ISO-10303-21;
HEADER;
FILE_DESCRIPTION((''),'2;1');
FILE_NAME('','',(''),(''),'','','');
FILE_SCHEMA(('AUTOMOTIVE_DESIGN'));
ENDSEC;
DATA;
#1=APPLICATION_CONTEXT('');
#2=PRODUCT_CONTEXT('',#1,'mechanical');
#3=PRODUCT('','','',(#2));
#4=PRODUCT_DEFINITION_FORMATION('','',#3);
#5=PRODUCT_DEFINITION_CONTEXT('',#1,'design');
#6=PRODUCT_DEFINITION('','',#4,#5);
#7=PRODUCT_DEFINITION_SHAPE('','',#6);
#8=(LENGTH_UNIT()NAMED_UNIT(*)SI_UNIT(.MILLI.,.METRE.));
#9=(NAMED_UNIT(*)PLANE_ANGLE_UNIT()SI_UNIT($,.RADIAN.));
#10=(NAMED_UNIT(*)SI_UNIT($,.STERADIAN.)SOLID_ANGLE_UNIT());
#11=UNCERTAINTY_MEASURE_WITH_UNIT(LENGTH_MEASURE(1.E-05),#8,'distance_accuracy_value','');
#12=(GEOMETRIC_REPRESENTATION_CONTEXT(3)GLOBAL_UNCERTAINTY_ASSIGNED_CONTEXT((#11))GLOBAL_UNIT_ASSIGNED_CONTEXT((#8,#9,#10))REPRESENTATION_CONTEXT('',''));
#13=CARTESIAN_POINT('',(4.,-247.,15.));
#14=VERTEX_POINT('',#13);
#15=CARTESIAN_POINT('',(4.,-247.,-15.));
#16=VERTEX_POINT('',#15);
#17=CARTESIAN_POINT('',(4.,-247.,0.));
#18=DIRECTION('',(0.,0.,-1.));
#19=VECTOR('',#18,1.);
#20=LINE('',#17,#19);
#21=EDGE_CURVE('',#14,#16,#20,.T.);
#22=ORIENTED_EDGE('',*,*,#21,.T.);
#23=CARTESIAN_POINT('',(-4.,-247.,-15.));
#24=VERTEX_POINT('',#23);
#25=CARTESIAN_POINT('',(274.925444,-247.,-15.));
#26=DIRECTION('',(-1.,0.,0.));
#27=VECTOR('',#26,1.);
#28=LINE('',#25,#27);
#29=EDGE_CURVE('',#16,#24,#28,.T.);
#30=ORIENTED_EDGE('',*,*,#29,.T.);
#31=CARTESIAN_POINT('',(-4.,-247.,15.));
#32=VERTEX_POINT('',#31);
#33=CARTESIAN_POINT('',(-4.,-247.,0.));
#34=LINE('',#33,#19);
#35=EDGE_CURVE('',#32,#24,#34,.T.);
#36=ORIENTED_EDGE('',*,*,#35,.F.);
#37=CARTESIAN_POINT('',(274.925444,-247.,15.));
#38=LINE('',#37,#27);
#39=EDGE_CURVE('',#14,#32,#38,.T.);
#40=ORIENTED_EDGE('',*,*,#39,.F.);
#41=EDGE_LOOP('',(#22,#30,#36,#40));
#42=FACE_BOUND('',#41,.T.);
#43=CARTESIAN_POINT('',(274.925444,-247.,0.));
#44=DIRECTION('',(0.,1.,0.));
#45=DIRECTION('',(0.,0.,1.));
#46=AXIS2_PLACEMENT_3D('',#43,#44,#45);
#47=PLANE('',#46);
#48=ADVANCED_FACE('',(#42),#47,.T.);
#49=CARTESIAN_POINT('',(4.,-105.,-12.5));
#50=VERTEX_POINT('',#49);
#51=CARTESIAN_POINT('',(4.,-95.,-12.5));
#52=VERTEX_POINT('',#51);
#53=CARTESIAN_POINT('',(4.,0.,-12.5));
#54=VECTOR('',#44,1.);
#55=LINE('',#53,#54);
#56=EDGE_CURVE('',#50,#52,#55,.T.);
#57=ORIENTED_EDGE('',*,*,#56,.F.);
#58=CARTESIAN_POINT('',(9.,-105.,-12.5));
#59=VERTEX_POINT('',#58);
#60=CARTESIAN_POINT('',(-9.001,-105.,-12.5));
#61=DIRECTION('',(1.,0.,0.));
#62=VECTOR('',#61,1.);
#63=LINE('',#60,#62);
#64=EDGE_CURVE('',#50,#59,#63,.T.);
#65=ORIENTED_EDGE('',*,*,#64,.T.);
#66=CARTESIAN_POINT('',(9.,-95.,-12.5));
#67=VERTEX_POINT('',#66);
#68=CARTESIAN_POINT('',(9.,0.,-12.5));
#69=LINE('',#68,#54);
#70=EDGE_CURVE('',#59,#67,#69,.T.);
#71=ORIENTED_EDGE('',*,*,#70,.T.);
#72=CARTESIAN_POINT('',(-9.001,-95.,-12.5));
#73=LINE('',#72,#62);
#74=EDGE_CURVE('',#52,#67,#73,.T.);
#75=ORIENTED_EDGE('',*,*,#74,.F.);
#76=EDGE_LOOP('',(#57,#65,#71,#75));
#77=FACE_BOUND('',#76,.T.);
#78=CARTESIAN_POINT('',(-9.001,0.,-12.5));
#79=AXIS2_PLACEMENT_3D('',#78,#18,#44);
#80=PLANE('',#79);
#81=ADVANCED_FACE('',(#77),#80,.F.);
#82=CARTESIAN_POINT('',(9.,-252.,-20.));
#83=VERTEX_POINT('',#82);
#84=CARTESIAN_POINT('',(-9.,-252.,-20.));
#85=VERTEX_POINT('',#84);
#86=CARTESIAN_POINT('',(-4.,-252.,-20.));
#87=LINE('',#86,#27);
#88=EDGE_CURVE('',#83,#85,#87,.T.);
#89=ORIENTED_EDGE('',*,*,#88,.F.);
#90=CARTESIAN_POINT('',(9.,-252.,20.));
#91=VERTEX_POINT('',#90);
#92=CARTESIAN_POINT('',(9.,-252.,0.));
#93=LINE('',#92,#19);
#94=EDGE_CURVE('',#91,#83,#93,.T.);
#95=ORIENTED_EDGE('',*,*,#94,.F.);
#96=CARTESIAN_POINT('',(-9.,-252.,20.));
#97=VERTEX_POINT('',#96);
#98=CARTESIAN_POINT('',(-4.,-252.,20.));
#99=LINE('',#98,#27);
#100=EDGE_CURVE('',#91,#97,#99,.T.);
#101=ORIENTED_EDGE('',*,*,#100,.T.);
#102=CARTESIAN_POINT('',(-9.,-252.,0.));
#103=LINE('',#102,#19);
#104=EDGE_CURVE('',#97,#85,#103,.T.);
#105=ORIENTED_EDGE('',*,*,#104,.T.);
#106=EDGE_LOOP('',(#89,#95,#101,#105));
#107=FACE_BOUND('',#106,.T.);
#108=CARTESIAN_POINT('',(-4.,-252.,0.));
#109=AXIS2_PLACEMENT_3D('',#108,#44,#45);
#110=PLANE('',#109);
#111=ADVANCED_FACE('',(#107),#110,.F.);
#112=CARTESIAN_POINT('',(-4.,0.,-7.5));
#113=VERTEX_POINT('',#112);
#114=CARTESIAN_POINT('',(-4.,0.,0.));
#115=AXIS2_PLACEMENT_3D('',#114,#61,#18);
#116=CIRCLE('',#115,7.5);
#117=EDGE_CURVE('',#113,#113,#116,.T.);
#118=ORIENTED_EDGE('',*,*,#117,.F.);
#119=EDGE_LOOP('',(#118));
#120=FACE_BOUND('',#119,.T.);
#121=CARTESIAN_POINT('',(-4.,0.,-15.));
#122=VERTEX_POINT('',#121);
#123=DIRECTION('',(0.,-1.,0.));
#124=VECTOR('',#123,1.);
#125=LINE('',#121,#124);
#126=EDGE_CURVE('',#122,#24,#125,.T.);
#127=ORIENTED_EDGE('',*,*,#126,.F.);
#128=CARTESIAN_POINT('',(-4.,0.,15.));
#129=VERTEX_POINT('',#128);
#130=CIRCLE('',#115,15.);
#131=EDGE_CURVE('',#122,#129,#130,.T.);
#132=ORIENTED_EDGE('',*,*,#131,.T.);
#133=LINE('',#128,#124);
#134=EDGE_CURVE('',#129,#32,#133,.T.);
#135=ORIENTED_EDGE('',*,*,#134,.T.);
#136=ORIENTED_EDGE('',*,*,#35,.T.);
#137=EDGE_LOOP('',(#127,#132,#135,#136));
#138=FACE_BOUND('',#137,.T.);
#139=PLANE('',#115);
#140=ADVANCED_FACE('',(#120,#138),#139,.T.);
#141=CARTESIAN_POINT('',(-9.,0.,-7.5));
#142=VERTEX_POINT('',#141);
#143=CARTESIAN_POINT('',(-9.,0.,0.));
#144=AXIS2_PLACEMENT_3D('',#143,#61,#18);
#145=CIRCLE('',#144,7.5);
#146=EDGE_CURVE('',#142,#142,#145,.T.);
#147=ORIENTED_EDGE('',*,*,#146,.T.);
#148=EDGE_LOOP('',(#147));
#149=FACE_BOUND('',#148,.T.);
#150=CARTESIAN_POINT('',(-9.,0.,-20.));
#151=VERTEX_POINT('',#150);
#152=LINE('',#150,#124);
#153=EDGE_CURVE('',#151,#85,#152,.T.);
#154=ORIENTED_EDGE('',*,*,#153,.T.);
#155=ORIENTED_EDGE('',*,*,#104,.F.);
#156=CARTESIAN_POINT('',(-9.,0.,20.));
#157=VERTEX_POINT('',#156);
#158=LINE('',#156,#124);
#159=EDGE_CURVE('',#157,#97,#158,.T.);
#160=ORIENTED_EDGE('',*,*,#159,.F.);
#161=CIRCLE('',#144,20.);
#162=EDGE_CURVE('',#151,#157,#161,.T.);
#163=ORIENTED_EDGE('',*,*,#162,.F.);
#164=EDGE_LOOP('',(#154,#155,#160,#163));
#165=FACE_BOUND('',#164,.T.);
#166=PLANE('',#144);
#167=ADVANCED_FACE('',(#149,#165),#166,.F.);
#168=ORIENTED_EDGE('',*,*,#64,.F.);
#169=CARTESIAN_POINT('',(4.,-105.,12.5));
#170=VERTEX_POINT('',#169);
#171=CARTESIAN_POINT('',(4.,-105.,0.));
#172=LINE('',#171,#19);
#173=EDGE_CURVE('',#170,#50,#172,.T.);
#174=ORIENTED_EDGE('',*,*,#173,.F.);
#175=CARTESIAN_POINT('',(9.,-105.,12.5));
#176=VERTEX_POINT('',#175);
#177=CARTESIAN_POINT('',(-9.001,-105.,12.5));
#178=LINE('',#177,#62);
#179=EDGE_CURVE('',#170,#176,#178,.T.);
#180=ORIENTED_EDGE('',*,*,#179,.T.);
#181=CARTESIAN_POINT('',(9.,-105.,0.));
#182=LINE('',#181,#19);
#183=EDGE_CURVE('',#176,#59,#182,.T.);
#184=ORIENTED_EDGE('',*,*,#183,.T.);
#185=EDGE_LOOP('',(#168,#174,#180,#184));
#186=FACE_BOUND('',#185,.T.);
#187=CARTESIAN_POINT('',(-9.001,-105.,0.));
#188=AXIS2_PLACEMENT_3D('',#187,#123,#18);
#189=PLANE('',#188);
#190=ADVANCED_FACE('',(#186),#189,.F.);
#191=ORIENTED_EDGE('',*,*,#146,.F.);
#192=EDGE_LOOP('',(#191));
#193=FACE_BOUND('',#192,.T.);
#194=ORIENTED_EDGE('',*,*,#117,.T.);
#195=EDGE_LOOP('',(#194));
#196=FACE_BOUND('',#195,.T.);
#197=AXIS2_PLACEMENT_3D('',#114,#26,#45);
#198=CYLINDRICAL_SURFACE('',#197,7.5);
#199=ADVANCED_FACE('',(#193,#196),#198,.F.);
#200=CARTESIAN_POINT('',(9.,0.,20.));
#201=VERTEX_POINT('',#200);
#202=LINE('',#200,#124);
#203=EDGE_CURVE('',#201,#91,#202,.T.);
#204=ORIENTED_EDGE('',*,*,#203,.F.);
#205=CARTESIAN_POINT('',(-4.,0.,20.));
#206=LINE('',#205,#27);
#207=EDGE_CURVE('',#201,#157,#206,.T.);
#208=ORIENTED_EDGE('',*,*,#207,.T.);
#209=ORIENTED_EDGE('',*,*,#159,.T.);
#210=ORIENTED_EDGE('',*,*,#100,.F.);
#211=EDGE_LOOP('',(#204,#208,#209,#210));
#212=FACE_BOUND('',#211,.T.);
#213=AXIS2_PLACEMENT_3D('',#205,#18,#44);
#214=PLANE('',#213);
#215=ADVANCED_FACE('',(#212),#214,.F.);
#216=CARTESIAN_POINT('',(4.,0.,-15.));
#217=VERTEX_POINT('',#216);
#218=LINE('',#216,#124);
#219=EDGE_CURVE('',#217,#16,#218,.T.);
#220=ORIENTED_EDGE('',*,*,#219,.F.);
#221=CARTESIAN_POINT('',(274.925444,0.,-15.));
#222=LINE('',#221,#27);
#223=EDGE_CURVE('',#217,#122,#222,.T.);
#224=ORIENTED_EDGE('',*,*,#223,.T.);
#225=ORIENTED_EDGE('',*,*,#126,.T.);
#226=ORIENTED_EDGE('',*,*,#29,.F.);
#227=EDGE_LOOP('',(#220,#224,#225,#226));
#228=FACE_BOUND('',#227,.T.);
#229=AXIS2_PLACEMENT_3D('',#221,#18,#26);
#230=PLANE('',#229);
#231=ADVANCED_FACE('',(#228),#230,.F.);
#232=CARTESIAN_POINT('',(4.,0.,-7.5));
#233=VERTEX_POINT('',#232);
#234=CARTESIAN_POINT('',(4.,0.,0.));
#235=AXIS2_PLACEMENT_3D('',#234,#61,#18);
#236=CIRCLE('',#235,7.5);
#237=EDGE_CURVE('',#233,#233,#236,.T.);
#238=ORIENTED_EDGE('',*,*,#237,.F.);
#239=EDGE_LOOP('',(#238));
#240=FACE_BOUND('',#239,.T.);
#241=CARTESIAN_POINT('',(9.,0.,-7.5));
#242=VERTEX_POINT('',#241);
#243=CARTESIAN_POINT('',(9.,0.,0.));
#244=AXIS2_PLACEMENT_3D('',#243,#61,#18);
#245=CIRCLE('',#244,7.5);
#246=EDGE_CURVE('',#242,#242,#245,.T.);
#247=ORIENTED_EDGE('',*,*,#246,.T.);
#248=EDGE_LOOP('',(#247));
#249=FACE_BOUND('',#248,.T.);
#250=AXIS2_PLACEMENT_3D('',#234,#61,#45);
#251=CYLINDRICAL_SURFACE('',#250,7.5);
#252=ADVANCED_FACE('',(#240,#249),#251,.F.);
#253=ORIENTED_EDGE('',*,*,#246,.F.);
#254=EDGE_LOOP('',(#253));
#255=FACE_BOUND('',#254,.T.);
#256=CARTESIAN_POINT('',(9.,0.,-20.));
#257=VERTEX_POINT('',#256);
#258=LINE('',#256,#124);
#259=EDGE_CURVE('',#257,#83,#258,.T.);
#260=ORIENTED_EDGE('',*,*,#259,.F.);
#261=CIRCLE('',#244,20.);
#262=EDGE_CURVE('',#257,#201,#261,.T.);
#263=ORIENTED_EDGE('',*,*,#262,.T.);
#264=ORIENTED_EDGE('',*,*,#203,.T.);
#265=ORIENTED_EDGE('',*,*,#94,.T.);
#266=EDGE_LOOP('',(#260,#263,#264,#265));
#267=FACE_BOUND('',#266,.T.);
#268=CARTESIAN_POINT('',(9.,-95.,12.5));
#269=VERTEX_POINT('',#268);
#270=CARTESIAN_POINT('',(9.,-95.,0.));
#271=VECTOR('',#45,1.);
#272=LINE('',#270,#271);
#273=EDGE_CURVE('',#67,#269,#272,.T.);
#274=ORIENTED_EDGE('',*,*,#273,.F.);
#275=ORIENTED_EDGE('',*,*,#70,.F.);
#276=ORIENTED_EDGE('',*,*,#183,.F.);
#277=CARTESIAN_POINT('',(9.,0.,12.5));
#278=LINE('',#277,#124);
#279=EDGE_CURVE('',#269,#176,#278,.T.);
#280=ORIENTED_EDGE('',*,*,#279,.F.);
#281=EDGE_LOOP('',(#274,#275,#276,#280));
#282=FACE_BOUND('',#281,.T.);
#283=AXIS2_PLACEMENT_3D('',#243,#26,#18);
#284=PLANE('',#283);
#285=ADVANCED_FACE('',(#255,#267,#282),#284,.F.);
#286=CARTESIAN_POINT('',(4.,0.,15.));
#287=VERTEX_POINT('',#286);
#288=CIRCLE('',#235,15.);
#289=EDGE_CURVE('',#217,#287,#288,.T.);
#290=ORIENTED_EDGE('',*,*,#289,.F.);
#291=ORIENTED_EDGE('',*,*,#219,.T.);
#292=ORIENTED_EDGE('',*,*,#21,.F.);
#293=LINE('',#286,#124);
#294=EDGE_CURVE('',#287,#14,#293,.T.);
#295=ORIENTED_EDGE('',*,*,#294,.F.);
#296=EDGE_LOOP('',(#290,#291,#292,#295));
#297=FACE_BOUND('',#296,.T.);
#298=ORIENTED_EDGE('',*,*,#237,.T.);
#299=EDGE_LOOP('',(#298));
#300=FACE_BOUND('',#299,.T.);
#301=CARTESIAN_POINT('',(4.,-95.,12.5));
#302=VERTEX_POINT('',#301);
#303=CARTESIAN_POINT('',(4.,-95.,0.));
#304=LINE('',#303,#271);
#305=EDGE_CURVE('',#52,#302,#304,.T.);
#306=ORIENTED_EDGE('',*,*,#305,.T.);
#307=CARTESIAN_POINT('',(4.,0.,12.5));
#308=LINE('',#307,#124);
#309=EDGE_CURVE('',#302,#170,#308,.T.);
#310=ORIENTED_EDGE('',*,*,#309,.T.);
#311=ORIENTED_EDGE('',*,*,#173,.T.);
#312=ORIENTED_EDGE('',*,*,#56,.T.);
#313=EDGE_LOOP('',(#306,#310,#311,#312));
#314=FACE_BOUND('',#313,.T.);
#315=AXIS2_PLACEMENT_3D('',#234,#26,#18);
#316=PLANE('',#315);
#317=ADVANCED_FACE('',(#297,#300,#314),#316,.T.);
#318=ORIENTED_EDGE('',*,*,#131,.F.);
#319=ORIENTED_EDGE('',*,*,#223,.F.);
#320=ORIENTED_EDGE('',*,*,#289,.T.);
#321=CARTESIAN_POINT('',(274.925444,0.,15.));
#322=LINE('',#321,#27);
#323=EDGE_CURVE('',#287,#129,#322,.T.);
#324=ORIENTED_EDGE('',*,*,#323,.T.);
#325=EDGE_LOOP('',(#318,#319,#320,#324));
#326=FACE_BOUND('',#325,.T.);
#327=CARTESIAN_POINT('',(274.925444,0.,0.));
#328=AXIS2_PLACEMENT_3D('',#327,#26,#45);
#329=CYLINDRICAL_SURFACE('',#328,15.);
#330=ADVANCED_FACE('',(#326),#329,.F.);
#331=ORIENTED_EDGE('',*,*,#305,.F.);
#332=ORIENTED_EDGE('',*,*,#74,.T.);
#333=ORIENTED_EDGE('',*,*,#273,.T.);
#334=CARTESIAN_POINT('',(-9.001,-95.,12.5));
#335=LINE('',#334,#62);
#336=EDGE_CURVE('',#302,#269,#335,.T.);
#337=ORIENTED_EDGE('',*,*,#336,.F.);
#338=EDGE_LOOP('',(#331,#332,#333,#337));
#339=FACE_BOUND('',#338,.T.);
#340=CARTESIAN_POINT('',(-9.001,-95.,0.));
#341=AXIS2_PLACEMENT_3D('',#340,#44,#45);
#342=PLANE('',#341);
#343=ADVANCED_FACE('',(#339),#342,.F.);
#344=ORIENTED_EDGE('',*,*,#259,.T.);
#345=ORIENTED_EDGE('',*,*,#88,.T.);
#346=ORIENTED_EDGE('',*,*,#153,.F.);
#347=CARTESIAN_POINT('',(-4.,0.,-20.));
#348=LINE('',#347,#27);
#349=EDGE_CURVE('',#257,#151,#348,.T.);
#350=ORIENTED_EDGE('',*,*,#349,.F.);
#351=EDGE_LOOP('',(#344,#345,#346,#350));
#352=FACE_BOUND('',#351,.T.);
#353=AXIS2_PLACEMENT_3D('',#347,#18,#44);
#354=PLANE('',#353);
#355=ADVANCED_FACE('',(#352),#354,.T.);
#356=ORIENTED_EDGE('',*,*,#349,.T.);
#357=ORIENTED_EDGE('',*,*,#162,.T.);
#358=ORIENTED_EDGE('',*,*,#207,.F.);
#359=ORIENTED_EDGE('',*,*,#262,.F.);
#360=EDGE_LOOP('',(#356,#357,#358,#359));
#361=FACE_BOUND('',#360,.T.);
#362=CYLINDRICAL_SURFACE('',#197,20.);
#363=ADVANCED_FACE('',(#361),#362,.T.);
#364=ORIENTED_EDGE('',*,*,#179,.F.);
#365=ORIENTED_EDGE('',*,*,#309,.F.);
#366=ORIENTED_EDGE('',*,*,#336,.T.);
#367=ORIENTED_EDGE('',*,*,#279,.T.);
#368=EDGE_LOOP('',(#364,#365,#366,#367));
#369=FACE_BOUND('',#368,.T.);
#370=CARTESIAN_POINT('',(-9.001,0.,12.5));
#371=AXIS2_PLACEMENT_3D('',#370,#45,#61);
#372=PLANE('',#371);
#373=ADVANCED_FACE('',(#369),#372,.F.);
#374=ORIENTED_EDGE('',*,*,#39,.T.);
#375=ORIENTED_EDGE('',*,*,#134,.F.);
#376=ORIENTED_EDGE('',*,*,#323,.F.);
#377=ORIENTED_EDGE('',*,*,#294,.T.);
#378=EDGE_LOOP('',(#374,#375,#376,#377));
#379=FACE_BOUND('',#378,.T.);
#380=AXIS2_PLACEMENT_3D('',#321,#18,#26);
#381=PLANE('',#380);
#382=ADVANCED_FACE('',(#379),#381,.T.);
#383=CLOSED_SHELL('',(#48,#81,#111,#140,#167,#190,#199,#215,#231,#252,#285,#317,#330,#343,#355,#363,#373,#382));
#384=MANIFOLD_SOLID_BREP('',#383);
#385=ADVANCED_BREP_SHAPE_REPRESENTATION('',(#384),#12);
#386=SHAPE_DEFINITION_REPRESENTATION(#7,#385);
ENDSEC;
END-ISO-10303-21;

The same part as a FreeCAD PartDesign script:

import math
import FreeCAD as App
import Part
import Sketcher


def add_polygon(sketch, points):
    """Adds a closed chain of lines whose ends are joined by coincident constraints."""
    first, n = sketch.GeometryCount, len(points)
    for a, b in zip(points, points[1:] + points[:1]):
        sketch.addGeometry(Part.LineSegment(App.Vector(*a, 0), App.Vector(*b, 0)), False)
    for i in range(n):
        sketch.addConstraint(Sketcher.Constraint("Coincident", first + i, 2, first + (i + 1) % n, 1))

doc = App.newDocument("Part")
body = doc.addObject("PartDesign::Body", "Body")

# Sketch on YZ plane
sketch1 = body.newObject("Sketcher::SketchObject", "Sketch")
sketch1.AttachmentSupport = (doc.getObject("YZ_Plane"), [""])
sketch1.MapMode = "FlatFace"
sketch1.AttachmentOffset = App.Placement(App.Vector(0, 0, -9), App.Rotation())
sketch1.addGeometry([
    Part.LineSegment(App.Vector(0, 20, 0), App.Vector(-252, 20, 0)),  # 0
    Part.LineSegment(App.Vector(-252, 20, 0), App.Vector(-252, -20, 0)),  # 1
    Part.LineSegment(App.Vector(-252, -20, 0), App.Vector(0, -20, 0)),  # 2
    Part.ArcOfCircle(Part.Circle(App.Vector(0, 0, 0), App.Vector(0, 0, 1), 20), math.radians(-90), math.radians(90)),  # 3
    Part.Circle(App.Vector(0, 0, 0), App.Vector(0, 0, 1), 8),  # 4
], False)
sketch1.addConstraint([
    Sketcher.Constraint("Coincident", 0, 2, 1, 1),
    Sketcher.Constraint("Coincident", 1, 2, 2, 1),
    Sketcher.Constraint("Tangent", 2, 2, 3, 1),
    Sketcher.Constraint("Tangent", 3, 2, 0, 1),
    Sketcher.Constraint("Horizontal", 0),
    Sketcher.Constraint("Vertical", 1),
    Sketcher.Constraint("Horizontal", 2),
    Sketcher.Constraint("Coincident", 3, 3, -1, 1),
    Sketcher.Constraint("Coincident", 4, 3, -1, 1),
    Sketcher.Constraint("Diameter", 4, 15.0),
    Sketcher.Constraint("Radius", 3, 20.0),
    Sketcher.Constraint("DistanceX", 0, 2, 0, 1, 252.0),
])
pad1 = body.newObject("PartDesign::Pad", "Pad")
pad1.Profile = sketch1
pad1.Length = 5

# Sketch on YZ plane
sketch2 = body.newObject("Sketcher::SketchObject", "Sketch001")
sketch2.AttachmentSupport = (doc.getObject("YZ_Plane"), [""])
sketch2.MapMode = "FlatFace"
sketch2.AttachmentOffset = App.Placement(App.Vector(0, 0, -4), App.Rotation())
sketch2.addGeometry([
    Part.LineSegment(App.Vector(0, 20, 0), App.Vector(-252, 20, 0)),  # 0
    Part.LineSegment(App.Vector(-252, 20, 0), App.Vector(-252, -20, 0)),  # 1
    Part.LineSegment(App.Vector(-252, -20, 0), App.Vector(0, -20, 0)),  # 2
    Part.ArcOfCircle(Part.Circle(App.Vector(0, 0, 0), App.Vector(0, 0, 1), 20), math.radians(-90), math.radians(90)),  # 3
    Part.LineSegment(App.Vector(-247, 15, 0), App.Vector(0, 15, 0)),  # 4
    Part.ArcOfCircle(Part.Circle(App.Vector(0, 0, 0), App.Vector(0, 0, 1), 15), math.radians(-90), math.radians(90)),  # 5
    Part.LineSegment(App.Vector(0, -15, 0), App.Vector(-247, -15, 0)),  # 6
    Part.LineSegment(App.Vector(-247, -15, 0), App.Vector(-247, 15, 0)),  # 7
], False)
sketch2.addConstraint([
    Sketcher.Constraint("Coincident", 0, 2, 1, 1),
    Sketcher.Constraint("Coincident", 1, 2, 2, 1),
    Sketcher.Constraint("Tangent", 2, 2, 3, 1),
    Sketcher.Constraint("Tangent", 3, 2, 0, 1),
    Sketcher.Constraint("Tangent", 4, 2, 5, 2),
    Sketcher.Constraint("Tangent", 5, 1, 6, 1),
    Sketcher.Constraint("Coincident", 6, 2, 7, 1),
    Sketcher.Constraint("Coincident", 7, 2, 4, 1),
    Sketcher.Constraint("Horizontal", 0),
    Sketcher.Constraint("Vertical", 1),
    Sketcher.Constraint("Horizontal", 2),
    Sketcher.Constraint("Horizontal", 4),
    Sketcher.Constraint("Horizontal", 6),
    Sketcher.Constraint("Vertical", 7),
    Sketcher.Constraint("Coincident", 3, 3, -1, 1),
    Sketcher.Constraint("Coincident", 5, 3, -1, 1),
    Sketcher.Constraint("Radius", 3, 20.0),
    Sketcher.Constraint("Radius", 5, 15.0),
    Sketcher.Constraint("DistanceX", 0, 2, 0, 1, 252.0),
    Sketcher.Constraint("DistanceX", 4, 1, 4, 2, 247.0),
])
pad2 = body.newObject("PartDesign::Pad", "Pad001")
pad2.Profile = sketch2
pad2.Length = 4
body2 = doc.addObject("PartDesign::Body", "Body001")
doc.recompute()

body2.BaseFeature = body
doc.recompute()

mirroring = doc.addObject("Part::Mirroring", "Mirroring")
mirroring.Source = body
mirroring.Base = App.Vector(0, 0, 0)
mirroring.Normal = App.Vector(1, 0, 0)
body3 = doc.addObject("PartDesign::Body", "Body002")
body3.BaseFeature = mirroring
boolean = body2.newObject("PartDesign::Boolean", "Boolean")
boolean.Type = "Fuse"
boolean.addObjects([body3])
doc.recompute()

# Sketch on YZ plane
sketch3 = body2.newObject("Sketcher::SketchObject", "Sketch002")
sketch3.AttachmentSupport = (doc.getObject("YZ_Plane001"), [""])
sketch3.MapMode = "FlatFace"
sketch3.AttachmentOffset = App.Placement(App.Vector(0, 0, 4), App.Rotation())
add_polygon(sketch3, [(-95, 12), (-105, 12), (-105, -12), (-95, -12)])  # lines 0-3
sketch3.addConstraint([
    Sketcher.Constraint("Horizontal", 0),
    Sketcher.Constraint("Vertical", 1),
    Sketcher.Constraint("Horizontal", 2),
    Sketcher.Constraint("Vertical", 3),
    Sketcher.Constraint("DistanceX", 0, 2, 0, 1, 10.0),
    Sketcher.Constraint("DistanceY", 1, 2, 1, 1, 25.0),
    Sketcher.Constraint("DistanceX", 0, 2, -1, 1, 105.0),
    Sketcher.Constraint("DistanceY", -1, 1, 0, 2, 12.5),
])
pocket1 = body2.newObject("PartDesign::Pocket", "Pocket")
pocket1.Profile = sketch3
pocket1.Length = 5
pocket1.Reversed = True
mirroring.Visibility = False

doc.recompute()
